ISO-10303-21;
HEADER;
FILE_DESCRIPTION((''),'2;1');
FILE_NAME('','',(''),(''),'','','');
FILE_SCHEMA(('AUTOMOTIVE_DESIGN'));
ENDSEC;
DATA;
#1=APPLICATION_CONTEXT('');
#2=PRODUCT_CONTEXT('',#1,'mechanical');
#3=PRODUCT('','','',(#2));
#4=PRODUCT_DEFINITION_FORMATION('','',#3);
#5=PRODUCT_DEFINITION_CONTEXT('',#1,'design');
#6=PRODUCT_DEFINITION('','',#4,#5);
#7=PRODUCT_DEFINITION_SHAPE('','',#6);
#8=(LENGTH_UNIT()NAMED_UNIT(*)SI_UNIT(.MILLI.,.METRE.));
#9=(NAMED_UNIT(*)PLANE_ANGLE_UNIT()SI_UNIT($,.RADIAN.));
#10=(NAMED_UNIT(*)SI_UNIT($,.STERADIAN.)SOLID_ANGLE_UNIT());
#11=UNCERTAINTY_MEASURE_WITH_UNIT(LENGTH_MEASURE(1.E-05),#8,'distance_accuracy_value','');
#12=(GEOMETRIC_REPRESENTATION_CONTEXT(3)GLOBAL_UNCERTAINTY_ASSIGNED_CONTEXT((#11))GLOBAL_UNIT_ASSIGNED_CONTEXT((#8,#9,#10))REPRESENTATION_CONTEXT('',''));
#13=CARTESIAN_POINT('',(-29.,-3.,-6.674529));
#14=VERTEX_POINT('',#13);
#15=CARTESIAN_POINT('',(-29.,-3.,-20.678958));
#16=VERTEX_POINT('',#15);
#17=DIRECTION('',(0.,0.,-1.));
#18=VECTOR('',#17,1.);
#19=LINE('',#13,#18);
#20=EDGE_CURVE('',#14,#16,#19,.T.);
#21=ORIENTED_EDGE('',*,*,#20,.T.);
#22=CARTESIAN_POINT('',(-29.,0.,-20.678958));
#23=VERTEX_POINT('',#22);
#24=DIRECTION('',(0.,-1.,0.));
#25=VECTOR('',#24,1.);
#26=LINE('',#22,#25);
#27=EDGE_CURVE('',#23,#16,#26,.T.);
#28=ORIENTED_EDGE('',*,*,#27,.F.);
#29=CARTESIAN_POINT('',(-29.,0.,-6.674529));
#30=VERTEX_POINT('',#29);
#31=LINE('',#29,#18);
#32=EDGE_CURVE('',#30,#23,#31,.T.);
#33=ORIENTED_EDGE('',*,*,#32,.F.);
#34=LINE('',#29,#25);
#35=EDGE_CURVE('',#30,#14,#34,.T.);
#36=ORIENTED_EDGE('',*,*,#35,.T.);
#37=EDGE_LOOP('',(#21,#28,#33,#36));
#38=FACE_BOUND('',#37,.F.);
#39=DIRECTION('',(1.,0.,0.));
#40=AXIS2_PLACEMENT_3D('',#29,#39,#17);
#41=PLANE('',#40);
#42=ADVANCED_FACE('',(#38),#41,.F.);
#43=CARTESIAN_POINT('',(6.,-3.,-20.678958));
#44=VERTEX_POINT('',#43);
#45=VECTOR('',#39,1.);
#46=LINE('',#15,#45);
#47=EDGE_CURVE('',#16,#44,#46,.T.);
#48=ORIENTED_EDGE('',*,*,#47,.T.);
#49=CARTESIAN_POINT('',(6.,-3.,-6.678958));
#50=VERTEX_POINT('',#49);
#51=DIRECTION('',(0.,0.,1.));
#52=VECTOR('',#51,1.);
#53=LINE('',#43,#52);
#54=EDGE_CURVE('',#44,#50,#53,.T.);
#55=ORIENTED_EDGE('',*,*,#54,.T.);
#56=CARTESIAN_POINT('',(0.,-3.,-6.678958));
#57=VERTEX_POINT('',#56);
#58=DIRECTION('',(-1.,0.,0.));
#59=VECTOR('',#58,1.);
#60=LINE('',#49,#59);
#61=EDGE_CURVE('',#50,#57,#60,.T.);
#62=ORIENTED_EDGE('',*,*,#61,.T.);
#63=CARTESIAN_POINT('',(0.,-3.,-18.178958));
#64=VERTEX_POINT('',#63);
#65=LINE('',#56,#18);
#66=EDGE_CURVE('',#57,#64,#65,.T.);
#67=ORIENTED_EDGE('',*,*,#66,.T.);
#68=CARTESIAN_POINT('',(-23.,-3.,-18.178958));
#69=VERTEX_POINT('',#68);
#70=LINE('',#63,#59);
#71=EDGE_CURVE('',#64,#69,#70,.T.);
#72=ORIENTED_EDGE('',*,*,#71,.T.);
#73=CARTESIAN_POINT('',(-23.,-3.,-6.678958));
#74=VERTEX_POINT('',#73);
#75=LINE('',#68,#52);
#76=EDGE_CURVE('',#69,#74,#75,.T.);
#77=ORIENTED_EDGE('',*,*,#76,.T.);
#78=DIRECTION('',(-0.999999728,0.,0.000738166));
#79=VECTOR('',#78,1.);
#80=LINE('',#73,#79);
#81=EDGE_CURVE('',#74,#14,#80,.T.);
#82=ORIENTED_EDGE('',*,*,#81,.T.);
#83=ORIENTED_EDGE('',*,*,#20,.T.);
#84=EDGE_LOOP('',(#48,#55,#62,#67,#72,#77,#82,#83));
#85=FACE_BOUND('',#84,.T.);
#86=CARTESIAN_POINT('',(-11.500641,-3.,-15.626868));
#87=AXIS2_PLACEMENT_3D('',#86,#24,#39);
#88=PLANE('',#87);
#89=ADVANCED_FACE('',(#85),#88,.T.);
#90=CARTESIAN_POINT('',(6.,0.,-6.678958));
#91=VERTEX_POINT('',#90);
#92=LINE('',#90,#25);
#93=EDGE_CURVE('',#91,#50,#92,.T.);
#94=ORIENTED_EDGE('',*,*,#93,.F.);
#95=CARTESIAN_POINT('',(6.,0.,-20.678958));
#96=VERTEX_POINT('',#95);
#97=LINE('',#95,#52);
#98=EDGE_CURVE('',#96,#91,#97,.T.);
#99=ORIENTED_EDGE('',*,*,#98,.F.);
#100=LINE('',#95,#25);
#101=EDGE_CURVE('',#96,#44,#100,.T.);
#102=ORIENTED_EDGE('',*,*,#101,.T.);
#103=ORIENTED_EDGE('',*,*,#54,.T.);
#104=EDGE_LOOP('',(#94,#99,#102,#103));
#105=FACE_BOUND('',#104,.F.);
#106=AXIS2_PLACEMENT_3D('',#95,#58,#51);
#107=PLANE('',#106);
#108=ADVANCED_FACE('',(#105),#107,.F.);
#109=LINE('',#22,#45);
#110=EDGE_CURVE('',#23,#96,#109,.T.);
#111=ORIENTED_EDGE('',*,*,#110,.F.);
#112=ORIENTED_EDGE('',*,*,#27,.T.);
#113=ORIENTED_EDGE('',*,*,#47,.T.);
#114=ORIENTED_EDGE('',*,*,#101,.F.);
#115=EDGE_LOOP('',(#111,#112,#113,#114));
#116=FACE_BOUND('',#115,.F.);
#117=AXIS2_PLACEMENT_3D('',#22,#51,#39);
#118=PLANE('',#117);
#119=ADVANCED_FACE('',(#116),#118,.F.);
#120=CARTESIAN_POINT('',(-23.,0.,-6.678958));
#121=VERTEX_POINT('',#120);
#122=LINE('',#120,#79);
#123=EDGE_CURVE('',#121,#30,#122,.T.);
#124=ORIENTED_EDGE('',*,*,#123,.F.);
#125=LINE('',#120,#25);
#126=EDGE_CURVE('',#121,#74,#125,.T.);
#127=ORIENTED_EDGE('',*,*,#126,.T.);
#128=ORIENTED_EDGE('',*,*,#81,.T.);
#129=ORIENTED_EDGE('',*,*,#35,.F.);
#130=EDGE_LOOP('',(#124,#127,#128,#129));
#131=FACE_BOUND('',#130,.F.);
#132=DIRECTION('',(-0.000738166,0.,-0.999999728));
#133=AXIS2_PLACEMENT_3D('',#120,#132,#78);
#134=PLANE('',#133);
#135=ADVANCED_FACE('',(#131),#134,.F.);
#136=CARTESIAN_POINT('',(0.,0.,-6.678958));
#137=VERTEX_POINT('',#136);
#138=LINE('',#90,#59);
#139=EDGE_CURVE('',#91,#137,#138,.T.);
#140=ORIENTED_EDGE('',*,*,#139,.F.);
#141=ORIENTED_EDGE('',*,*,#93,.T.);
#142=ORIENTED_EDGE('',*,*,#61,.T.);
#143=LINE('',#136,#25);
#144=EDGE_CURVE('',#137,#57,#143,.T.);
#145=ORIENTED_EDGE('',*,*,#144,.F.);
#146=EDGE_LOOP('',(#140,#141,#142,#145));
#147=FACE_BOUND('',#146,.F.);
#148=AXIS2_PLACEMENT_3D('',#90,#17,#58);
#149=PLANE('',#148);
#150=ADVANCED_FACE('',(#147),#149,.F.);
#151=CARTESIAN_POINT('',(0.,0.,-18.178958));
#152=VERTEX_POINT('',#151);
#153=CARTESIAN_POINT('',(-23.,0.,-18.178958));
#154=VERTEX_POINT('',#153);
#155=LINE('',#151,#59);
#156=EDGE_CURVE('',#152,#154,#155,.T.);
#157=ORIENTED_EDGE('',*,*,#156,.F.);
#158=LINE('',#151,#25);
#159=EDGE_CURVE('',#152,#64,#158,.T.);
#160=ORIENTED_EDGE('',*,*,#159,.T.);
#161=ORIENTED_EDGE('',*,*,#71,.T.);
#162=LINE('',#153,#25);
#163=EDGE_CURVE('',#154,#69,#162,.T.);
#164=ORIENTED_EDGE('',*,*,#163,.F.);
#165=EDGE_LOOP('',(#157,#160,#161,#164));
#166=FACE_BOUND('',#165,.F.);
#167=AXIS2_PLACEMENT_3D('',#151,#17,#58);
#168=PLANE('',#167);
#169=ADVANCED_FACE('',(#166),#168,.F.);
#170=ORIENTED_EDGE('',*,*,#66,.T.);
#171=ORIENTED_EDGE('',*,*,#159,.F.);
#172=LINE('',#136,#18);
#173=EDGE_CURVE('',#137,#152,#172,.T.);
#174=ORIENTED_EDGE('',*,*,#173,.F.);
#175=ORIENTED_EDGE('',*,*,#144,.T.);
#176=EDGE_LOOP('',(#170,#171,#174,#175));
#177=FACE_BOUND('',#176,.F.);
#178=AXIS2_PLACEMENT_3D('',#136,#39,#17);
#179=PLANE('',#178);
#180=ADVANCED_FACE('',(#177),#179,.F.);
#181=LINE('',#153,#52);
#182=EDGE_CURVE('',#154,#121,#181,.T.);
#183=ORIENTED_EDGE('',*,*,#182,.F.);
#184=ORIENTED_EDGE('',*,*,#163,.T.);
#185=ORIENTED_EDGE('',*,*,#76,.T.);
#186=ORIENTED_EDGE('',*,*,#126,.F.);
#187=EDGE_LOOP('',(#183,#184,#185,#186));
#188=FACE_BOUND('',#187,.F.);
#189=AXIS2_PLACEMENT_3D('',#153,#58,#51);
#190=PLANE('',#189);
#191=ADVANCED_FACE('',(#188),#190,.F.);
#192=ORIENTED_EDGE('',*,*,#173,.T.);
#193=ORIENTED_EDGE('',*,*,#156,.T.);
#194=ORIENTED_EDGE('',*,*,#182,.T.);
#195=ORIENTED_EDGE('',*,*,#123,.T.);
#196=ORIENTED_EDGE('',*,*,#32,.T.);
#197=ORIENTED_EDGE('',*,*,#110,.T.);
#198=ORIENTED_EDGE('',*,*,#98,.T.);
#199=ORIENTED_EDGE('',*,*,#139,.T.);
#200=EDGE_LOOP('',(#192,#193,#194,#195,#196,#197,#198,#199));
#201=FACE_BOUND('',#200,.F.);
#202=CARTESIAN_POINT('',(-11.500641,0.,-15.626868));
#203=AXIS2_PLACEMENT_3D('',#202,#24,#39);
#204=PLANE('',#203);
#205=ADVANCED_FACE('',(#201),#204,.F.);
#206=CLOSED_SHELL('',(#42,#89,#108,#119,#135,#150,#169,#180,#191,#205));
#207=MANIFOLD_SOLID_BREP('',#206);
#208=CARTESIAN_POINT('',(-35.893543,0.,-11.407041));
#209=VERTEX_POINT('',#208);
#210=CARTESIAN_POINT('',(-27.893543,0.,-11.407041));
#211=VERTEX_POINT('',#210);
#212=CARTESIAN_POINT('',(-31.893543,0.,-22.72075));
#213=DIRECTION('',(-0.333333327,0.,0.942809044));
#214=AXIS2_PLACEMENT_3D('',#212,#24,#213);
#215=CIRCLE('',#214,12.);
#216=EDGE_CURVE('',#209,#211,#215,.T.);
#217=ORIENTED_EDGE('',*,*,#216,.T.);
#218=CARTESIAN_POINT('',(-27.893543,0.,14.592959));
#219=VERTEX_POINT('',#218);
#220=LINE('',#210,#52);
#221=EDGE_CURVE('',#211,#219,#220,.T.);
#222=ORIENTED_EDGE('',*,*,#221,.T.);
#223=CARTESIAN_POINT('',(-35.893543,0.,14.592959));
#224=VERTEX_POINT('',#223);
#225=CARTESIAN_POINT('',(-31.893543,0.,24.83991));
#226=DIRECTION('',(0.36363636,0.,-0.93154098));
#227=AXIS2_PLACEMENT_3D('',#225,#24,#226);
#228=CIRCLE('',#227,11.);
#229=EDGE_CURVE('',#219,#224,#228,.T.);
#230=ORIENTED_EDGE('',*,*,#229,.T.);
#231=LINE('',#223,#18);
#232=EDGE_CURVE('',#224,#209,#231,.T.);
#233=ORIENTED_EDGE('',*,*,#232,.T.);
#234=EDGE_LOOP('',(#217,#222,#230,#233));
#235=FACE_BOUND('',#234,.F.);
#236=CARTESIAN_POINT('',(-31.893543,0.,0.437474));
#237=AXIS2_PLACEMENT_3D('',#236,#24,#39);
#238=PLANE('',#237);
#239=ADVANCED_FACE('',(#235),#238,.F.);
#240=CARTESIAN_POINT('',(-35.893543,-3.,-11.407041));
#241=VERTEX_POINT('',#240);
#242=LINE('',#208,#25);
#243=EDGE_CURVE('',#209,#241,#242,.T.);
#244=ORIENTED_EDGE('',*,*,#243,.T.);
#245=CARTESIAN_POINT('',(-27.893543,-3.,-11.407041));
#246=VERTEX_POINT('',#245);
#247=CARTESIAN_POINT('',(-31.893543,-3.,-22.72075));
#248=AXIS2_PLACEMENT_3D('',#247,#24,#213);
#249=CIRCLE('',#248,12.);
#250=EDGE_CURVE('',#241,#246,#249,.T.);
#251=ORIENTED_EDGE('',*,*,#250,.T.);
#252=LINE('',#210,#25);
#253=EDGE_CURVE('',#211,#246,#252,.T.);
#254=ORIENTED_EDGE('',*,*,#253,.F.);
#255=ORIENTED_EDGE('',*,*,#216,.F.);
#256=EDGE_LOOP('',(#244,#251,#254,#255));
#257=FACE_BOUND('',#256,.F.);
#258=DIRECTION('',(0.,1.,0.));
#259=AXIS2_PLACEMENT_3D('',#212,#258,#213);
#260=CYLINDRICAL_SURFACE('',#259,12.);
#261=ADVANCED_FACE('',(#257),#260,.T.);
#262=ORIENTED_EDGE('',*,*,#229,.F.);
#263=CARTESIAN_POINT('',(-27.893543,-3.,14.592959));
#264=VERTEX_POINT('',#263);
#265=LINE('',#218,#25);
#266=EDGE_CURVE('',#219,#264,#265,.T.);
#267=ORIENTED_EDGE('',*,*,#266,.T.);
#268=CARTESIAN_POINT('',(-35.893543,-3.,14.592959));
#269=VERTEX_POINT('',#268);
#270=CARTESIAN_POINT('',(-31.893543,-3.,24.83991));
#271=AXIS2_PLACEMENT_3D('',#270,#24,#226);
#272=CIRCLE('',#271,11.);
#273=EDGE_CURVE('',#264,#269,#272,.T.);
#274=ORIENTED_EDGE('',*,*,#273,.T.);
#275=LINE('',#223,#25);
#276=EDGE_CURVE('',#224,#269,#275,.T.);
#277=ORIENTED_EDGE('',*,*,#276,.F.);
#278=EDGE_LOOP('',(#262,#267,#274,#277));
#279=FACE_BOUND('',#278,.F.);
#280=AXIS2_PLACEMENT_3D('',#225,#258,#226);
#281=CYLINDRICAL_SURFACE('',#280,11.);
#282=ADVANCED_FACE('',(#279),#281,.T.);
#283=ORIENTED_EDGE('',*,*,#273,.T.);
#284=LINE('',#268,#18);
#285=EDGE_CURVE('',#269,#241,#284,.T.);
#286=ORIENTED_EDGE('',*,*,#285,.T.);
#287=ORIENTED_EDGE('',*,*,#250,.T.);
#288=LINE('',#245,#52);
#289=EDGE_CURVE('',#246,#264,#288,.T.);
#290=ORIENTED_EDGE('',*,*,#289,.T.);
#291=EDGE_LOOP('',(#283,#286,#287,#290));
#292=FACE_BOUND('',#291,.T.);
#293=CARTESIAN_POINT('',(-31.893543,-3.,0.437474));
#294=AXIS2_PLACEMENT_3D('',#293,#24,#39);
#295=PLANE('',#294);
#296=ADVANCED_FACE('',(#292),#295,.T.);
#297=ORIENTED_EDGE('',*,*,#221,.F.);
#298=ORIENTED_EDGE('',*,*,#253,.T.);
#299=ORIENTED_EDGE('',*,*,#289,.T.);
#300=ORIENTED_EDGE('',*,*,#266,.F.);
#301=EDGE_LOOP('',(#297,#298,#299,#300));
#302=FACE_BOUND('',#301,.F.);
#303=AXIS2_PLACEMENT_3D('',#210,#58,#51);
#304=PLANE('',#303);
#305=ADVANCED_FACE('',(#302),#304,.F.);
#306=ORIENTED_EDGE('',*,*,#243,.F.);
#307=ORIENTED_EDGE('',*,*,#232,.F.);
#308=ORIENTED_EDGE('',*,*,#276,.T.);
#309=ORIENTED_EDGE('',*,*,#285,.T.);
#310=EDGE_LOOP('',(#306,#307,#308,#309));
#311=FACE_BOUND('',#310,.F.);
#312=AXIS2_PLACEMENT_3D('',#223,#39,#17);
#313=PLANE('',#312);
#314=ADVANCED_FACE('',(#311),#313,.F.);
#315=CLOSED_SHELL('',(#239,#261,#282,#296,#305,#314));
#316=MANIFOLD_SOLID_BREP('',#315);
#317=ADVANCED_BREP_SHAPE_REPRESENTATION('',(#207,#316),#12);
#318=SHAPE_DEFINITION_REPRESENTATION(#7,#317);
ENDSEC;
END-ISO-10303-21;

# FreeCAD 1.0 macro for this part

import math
import FreeCAD as App
import Part
import Sketcher
from FreeCAD import Vector

doc = App.newDocument("Part")
body = doc.addObject("PartDesign::Body", "Body")

# Sketch on XZ plane
sketch1 = body.newObject("Sketcher::SketchObject", "Sketch")
sketch1.AttachmentSupport = (doc.getObject("XZ_Plane"), [""])
sketch1.MapMode = "FlatFace"
sketch1.addGeometry(Part.LineSegment(Vector(-29, -6.674529, 0), Vector(-29, -20.678958, 0)), False)
sketch1.addGeometry(Part.LineSegment(Vector(-29, -20.678958, 0), Vector(6, -20.678958, 0)), False)
sketch1.addGeometry(Part.LineSegment(Vector(6, -20.678958, 0), Vector(6, -6.678958, 0)), False)
sketch1.addGeometry(Part.LineSegment(Vector(6, -6.678958, 0), Vector(0, -6.678958, 0)), False)
sketch1.addGeometry(Part.LineSegment(Vector(0, -6.678958, 0), Vector(0, -18.178958, 0)), False)
sketch1.addGeometry(Part.LineSegment(Vector(0, -18.178958, 0), Vector(-23, -18.178958, 0)), False)
sketch1.addGeometry(Part.LineSegment(Vector(-23, -18.178958, 0), Vector(-23, -6.678958, 0)), False)
sketch1.addGeometry(Part.LineSegment(Vector(-23, -6.678958, 0), Vector(-29, -6.674529, 0)), False)
sketch1.addConstraint(Sketcher.Constraint("Coincident", 0, 2, 1, 1))
sketch1.addConstraint(Sketcher.Constraint("Coincident", 1, 2, 2, 1))
sketch1.addConstraint(Sketcher.Constraint("Coincident", 2, 2, 3, 1))
sketch1.addConstraint(Sketcher.Constraint("Coincident", 3, 2, 4, 1))
sketch1.addConstraint(Sketcher.Constraint("Coincident", 4, 2, 5, 1))
sketch1.addConstraint(Sketcher.Constraint("Coincident", 5, 2, 6, 1))
sketch1.addConstraint(Sketcher.Constraint("Coincident", 6, 2, 7, 1))
sketch1.addConstraint(Sketcher.Constraint("Coincident", 7, 2, 0, 1))
sketch1.addConstraint(Sketcher.Constraint("Vertical", 0))
sketch1.addConstraint(Sketcher.Constraint("Horizontal", 1))
sketch1.addConstraint(Sketcher.Constraint("Vertical", 2))
sketch1.addConstraint(Sketcher.Constraint("Horizontal", 3))
sketch1.addConstraint(Sketcher.Constraint("Vertical", 4))
sketch1.addConstraint(Sketcher.Constraint("Horizontal", 5))
sketch1.addConstraint(Sketcher.Constraint("Vertical", 6))
sketch1.addConstraint(Sketcher.Constraint("PointOnObject", 3, 2, -2))
sketch1.addConstraint(Sketcher.Constraint("Horizontal", 3, 2, 6, 2))
sketch1.addConstraint(Sketcher.Constraint("DistanceX", 1, 1, 1, 2, 35.0))
sketch1.addConstraint(Sketcher.Constraint("DistanceX", 3, 2, 3, 1, 6.0))
sketch1.addConstraint(Sketcher.Constraint("DistanceX", 5, 2, 5, 1, 23.0))
sketch1.addConstraint(Sketcher.Constraint("DistanceY", 2, 1, 2, 2, 14.0))
sketch1.addConstraint(Sketcher.Constraint("DistanceY", 4, 2, 4, 1, 11.5))
sketch1.addConstraint(Sketcher.Constraint("DistanceY", 0, 2, 0, 1, 14.004429))
sketch1.addConstraint(Sketcher.Constraint("DistanceY", 0, 2, -1, 1, 20.678958))
pad1 = body.newObject("PartDesign::Pad", "Pad")
pad1.Profile = sketch1
pad1.Length = 3
body2 = doc.addObject("PartDesign::Body", "Body001")

# Sketch on XZ plane
sketch2 = body2.newObject("Sketcher::SketchObject", "Sketch001")
sketch2.AttachmentSupport = (doc.getObject("XZ_Plane001"), [""])
sketch2.MapMode = "FlatFace"
sketch2.addGeometry(Part.ArcOfCircle(Part.Circle(Vector(-31.893543, 24.83991, 0), Vector(0, 0, 1), 11), math.radians(-68.676314), math.radians(248.676314)), False)
sketch2.addGeometry(Part.LineSegment(Vector(-35.893543, 14.592959, 0), Vector(-35.893543, -11.407041, 0)), False)
sketch2.addGeometry(Part.ArcOfCircle(Part.Circle(Vector(-31.893543, -22.72075, 0), Vector(0, 0, 1), 12), math.radians(109.47122), math.radians(430.52878)), False)
sketch2.addGeometry(Part.LineSegment(Vector(-27.893543, -11.407041, 0), Vector(-27.893543, 14.592959, 0)), False)
sketch2.addConstraint(Sketcher.Constraint("Coincident", 0, 2, 1, 1))
sketch2.addConstraint(Sketcher.Constraint("Coincident", 1, 2, 2, 1))
sketch2.addConstraint(Sketcher.Constraint("Coincident", 2, 2, 3, 1))
sketch2.addConstraint(Sketcher.Constraint("Coincident", 3, 2, 0, 1))
sketch2.addConstraint(Sketcher.Constraint("Vertical", 1))
sketch2.addConstraint(Sketcher.Constraint("Vertical", 3))
sketch2.addConstraint(Sketcher.Constraint("Horizontal", 1, 2, 2, 2))
sketch2.addConstraint(Sketcher.Constraint("Horizontal", 0, 2, 3, 2))
sketch2.addConstraint(Sketcher.Constraint("Radius", 0, 11.0))
sketch2.addConstraint(Sketcher.Constraint("Radius", 2, 12.0))
sketch2.addConstraint(Sketcher.Constraint("DistanceY", 1, 2, 1, 1, 26.0))
sketch2.addConstraint(Sketcher.Constraint("DistanceX", 0, 2, 0, 3, 4.0))
sketch2.addConstraint(Sketcher.Constraint("DistanceY", -1, 1, 0, 3, 24.83991))
sketch2.addConstraint(Sketcher.Constraint("DistanceX", 0, 3, -1, 1, 31.893543))
pad2 = body2.newObject("PartDesign::Pad", "Pad001")
pad2.Profile = sketch2
pad2.Length = 3

doc.recompute()
